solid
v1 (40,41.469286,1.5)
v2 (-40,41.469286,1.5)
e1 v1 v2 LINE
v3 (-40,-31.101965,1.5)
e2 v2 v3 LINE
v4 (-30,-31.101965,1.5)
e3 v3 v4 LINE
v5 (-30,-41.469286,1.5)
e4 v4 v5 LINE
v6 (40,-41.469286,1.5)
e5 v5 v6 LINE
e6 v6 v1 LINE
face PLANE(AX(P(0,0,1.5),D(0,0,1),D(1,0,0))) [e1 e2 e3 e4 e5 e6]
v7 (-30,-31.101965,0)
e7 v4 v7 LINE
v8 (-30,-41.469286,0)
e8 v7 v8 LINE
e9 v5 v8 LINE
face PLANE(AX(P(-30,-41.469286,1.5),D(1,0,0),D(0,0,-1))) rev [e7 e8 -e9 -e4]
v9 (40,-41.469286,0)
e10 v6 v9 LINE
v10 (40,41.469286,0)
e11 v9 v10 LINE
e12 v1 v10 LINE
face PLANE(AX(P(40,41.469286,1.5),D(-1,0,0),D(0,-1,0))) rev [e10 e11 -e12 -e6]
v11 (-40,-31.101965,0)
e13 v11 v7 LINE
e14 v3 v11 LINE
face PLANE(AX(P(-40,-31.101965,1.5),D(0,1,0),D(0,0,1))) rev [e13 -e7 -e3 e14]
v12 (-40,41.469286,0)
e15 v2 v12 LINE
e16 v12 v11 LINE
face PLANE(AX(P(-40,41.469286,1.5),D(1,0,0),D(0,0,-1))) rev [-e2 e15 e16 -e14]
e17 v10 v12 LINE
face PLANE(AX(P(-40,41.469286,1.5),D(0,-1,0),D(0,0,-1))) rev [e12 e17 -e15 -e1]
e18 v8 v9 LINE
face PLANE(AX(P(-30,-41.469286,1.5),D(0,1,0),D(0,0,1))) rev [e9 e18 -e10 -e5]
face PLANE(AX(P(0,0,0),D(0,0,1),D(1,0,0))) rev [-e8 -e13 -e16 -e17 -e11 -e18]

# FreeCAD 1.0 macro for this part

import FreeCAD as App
import Part
import Sketcher

V = App.Vector
Q = App.Units.Quantity

doc = App.newDocument("Part")
body = doc.addObject("PartDesign::Body", "Body")

# Sketch on XY plane
sketch1 = body.newObject("Sketcher::SketchObject", "Sketch")
sketch1.AttachmentSupport = (doc.getObject("XY_Plane"), [""])
sketch1.MapMode = "FlatFace"
sketch1.addGeometry(Part.LineSegment(V(40, 41.469286, 0), V(-40, 41.469286, 0)), False)
sketch1.addGeometry(Part.LineSegment(V(-40, 41.469286, 0), V(-40, -31.101965, 0)), False)
sketch1.addGeometry(Part.LineSegment(V(-40, -31.101965, 0), V(-30, -31.101965, 0)), False)
sketch1.addGeometry(Part.LineSegment(V(-30, -31.101965, 0), V(-30, -41.469286, 0)), False)
sketch1.addGeometry(Part.LineSegment(V(-30, -41.469286, 0), V(40, -41.469286, 0)), False)
sketch1.addGeometry(Part.LineSegment(V(40, -41.469286, 0), V(40, 41.469286, 0)), False)
sketch1.addConstraint(Sketcher.Constraint("Coincident", 0, 2, 1, 1))
sketch1.addConstraint(Sketcher.Constraint("Coincident", 1, 2, 2, 1))
sketch1.addConstraint(Sketcher.Constraint("Coincident", 2, 2, 3, 1))
sketch1.addConstraint(Sketcher.Constraint("Coincident", 3, 2, 4, 1))
sketch1.addConstraint(Sketcher.Constraint("Coincident", 4, 2, 5, 1))
sketch1.addConstraint(Sketcher.Constraint("Coincident", 5, 2, 0, 1))
sketch1.addConstraint(Sketcher.Constraint("Horizontal", 0))
sketch1.addConstraint(Sketcher.Constraint("Vertical", 1))
sketch1.addConstraint(Sketcher.Constraint("Horizontal", 2))
sketch1.addConstraint(Sketcher.Constraint("Vertical", 3))
sketch1.addConstraint(Sketcher.Constraint("Horizontal", 4))
sketch1.addConstraint(Sketcher.Constraint("Vertical", 5))
sketch1.addConstraint(Sketcher.Constraint("Symmetric", 0, 2, 4, 2, -1, 1))
sketch1.addConstraint(Sketcher.Constraint("DistanceX", 0, 2, 0, 1, Q("80 mm")))
sketch1.addConstraint(Sketcher.Constraint("DistanceX", 2, 1, 2, 2, Q("10 mm")))
sketch1.addConstraint(Sketcher.Constraint("DistanceY", 1, 2, 1, 1, Q("72.571251 mm")))
sketch1.addConstraint(Sketcher.Constraint("DistanceY", 3, 2, 3, 1, Q("10.367322 mm")))
pad1 = body.newObject("PartDesign::Pad", "Pad")
pad1.Profile = sketch1
pad1.Length = 1.5

doc.recompute()
